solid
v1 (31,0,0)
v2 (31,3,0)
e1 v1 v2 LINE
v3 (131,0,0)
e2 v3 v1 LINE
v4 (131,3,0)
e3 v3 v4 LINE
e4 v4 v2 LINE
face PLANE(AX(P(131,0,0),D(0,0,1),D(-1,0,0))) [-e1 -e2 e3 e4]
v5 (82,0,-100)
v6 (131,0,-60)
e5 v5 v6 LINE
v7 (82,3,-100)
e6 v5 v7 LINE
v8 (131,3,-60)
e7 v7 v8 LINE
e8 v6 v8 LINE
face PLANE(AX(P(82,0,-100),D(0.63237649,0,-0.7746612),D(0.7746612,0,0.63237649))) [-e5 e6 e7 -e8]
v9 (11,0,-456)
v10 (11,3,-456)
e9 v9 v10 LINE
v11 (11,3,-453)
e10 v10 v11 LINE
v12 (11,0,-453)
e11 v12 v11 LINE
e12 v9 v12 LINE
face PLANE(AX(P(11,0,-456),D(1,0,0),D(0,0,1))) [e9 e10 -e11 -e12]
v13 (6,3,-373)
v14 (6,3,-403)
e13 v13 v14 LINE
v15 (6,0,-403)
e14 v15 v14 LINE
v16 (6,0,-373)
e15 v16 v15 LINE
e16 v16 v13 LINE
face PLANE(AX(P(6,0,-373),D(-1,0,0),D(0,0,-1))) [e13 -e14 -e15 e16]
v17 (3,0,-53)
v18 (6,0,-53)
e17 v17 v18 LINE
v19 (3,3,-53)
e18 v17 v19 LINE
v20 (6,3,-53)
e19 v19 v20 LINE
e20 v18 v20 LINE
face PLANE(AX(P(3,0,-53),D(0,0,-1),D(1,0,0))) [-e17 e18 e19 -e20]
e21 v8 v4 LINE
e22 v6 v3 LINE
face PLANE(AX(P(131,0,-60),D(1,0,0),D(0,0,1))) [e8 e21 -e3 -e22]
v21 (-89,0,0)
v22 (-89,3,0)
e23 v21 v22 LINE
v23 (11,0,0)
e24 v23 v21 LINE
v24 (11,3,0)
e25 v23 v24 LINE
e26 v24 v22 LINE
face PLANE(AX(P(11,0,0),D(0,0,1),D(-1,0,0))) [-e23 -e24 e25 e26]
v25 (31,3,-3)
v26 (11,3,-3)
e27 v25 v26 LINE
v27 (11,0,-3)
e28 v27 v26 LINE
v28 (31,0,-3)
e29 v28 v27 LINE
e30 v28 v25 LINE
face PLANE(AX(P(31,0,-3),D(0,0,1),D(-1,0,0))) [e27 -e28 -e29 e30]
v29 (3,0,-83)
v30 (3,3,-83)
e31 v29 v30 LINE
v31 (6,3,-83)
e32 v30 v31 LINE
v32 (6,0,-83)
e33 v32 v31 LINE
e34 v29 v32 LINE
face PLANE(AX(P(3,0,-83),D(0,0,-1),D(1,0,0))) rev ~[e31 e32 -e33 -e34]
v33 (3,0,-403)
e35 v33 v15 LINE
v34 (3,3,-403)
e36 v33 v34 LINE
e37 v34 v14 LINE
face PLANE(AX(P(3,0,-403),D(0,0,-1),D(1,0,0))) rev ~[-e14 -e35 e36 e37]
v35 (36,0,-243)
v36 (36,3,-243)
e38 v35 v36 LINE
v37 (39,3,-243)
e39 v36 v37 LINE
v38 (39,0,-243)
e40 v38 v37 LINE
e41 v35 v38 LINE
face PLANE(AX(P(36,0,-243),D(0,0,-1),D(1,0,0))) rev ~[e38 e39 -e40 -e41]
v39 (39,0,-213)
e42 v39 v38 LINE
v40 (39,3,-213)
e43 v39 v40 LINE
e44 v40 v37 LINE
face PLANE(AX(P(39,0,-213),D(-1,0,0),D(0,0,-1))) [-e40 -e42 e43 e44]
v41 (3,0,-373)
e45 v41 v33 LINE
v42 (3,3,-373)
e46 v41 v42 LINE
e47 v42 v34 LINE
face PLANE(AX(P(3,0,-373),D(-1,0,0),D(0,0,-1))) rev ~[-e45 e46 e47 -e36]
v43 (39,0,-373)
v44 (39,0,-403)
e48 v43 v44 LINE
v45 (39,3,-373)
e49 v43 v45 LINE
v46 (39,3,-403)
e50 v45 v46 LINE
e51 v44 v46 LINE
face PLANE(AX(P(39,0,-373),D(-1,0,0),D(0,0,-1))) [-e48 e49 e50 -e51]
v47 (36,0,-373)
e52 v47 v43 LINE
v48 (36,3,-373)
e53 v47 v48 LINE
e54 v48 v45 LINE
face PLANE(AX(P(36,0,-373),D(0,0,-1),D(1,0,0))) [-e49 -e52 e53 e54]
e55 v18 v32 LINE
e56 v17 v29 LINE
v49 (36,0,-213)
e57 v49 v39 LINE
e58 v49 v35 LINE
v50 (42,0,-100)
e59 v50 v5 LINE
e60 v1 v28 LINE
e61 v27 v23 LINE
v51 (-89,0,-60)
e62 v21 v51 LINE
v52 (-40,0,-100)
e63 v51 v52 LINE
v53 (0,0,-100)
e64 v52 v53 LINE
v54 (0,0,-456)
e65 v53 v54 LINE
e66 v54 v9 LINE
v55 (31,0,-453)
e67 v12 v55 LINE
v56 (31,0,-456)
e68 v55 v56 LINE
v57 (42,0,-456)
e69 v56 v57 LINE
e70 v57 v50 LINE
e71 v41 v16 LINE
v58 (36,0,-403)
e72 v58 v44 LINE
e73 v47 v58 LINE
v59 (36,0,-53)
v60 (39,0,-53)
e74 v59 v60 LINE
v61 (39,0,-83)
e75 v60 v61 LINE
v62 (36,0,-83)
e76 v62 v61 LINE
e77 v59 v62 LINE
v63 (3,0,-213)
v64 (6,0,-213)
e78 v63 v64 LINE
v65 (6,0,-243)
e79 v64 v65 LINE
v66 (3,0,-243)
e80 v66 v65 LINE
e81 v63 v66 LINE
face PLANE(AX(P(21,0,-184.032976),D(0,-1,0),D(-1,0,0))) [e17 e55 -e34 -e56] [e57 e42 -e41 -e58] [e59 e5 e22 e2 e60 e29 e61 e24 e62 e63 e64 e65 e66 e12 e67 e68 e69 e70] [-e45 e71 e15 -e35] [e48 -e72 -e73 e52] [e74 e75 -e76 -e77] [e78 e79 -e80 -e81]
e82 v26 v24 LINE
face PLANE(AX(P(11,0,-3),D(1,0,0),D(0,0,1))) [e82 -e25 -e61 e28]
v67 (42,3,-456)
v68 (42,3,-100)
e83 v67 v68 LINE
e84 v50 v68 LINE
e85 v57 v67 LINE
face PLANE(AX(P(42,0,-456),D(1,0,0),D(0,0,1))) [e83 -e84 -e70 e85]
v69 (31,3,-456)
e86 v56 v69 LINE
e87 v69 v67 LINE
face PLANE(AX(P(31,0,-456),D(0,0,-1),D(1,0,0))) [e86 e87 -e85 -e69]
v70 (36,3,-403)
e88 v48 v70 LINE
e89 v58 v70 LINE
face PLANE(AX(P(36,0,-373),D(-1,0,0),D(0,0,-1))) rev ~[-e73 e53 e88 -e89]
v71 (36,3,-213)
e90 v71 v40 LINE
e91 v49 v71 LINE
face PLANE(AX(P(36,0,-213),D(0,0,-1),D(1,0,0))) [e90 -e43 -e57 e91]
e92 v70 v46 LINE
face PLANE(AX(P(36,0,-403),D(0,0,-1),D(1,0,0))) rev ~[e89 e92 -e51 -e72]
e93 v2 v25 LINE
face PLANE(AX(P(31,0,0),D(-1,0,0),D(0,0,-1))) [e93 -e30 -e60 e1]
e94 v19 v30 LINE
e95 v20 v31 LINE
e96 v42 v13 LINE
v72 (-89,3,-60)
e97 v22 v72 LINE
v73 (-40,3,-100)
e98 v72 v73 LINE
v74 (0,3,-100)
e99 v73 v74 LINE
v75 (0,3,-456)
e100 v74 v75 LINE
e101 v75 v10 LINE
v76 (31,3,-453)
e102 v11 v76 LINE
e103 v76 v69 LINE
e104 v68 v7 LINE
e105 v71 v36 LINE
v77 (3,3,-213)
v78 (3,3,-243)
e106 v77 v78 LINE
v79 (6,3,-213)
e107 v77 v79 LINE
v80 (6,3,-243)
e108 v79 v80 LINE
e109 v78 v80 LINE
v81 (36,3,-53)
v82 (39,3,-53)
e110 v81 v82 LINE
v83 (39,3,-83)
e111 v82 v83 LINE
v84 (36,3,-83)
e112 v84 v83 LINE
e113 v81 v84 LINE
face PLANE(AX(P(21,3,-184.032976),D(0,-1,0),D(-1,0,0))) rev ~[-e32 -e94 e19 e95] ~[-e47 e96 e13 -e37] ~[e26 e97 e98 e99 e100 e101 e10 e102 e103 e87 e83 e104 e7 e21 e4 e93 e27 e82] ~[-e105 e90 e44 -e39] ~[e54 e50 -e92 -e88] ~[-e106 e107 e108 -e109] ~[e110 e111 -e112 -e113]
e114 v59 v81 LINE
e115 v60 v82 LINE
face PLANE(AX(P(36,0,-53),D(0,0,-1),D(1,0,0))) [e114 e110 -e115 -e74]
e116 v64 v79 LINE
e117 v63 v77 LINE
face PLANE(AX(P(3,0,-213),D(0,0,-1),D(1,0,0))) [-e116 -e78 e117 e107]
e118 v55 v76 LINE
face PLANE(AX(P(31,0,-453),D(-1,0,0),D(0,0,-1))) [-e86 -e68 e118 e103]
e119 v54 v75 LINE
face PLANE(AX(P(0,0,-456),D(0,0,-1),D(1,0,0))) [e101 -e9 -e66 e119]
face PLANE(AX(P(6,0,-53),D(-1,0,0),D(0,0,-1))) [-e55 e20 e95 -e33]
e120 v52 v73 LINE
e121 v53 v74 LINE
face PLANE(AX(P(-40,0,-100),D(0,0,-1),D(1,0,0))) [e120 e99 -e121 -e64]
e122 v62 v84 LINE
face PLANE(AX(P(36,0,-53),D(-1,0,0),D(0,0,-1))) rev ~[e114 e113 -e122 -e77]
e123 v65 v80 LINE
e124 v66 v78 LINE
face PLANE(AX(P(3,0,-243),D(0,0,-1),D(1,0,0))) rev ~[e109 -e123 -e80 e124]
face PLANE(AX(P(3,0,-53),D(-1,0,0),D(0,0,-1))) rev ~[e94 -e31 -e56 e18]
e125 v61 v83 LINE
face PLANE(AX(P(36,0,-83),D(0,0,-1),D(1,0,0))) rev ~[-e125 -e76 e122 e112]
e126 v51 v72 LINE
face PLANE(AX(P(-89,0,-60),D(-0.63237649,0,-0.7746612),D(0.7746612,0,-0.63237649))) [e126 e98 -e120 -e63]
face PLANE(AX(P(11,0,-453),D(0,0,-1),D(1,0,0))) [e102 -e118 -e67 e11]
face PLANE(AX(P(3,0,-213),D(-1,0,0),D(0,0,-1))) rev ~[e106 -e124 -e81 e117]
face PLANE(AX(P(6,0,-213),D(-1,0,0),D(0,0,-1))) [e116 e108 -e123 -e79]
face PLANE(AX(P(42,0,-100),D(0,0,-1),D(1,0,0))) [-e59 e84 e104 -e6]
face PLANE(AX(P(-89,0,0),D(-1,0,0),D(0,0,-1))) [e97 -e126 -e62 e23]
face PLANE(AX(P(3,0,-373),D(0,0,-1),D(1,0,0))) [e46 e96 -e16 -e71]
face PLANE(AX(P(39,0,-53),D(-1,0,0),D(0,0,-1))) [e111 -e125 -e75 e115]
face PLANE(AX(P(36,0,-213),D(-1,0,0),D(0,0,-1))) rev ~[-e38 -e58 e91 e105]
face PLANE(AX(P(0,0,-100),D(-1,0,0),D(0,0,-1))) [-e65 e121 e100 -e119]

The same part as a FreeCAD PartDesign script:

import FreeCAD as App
import Part
import Sketcher


def add_polygon(sketch, points):
    """Adds a closed chain of lines whose ends are joined by coincident constraints."""
    first, n = sketch.GeometryCount, len(points)
    for a, b in zip(points, points[1:] + points[:1]):
        sketch.addGeometry(Part.LineSegment(App.Vector(*a, 0), App.Vector(*b, 0)), False)
    for i in range(n):
        sketch.addConstraint(Sketcher.Constraint("Coincident", first + i, 2, first + (i + 1) % n, 1))

doc = App.newDocument("Part")
body = doc.addObject("PartDesign::Body", "Body")

# Sketch on XZ plane
sketch1 = body.newObject("Sketcher::SketchObject", "Sketch")
sketch1.AttachmentSupport = (doc.getObject("XZ_Plane"), [""])
sketch1.MapMode = "FlatFace"
add_polygon(sketch1, [(42, -456), (31, -456), (31, -453), (11, -453), (11, -456), (0, -456), (0, -100), (-40, -100), (-89, -60), (-89, 0), (11, 0), (11, -3), (31, -3), (31, 0), (131, 0), (131, -60), (82, -100), (42, -100)])  # lines 0-17
add_polygon(sketch1, [(36, -53), (36, -83), (39, -83), (39, -53)])  # lines 18-21
add_polygon(sketch1, [(3, -53), (3, -83), (6, -83), (6, -53)])  # lines 22-25
add_polygon(sketch1, [(36, -213), (36, -243), (39, -243), (39, -213)])  # lines 26-29
add_polygon(sketch1, [(36, -373), (36, -403), (39, -403), (39, -373)])  # lines 30-33
add_polygon(sketch1, [(3, -213), (3, -243), (6, -243), (6, -213)])  # lines 34-37
add_polygon(sketch1, [(3, -373), (3, -403), (6, -403), (6, -373)])  # lines 38-41
sketch1.addConstraint([
    Sketcher.Constraint("Horizontal", 0),
    Sketcher.Constraint("Vertical", 1),
    Sketcher.Constraint("Horizontal", 2),
    Sketcher.Constraint("Vertical", 3),
    Sketcher.Constraint("Horizontal", 4),
    Sketcher.Constraint("Vertical", 5),
    Sketcher.Constraint("Horizontal", 6),
    Sketcher.Constraint("Vertical", 8),
    Sketcher.Constraint("Horizontal", 9),
    Sketcher.Constraint("Vertical", 10),
    Sketcher.Constraint("Horizontal", 11),
    Sketcher.Constraint("Vertical", 12),
    Sketcher.Constraint("Horizontal", 13),
    Sketcher.Constraint("Vertical", 14),
    Sketcher.Constraint("Horizontal", 16),
    Sketcher.Constraint("Vertical", 17),
    Sketcher.Constraint("Vertical", 18),
    Sketcher.Constraint("Horizontal", 19),
    Sketcher.Constraint("Vertical", 20),
    Sketcher.Constraint("Horizontal", 21),
    Sketcher.Constraint("Vertical", 22),
    Sketcher.Constraint("Horizontal", 23),
    Sketcher.Constraint("Vertical", 24),
    Sketcher.Constraint("Horizontal", 25),
    Sketcher.Constraint("Vertical", 26),
    Sketcher.Constraint("Horizontal", 27),
    Sketcher.Constraint("Vertical", 28),
    Sketcher.Constraint("Horizontal", 29),
    Sketcher.Constraint("Vertical", 30),
    Sketcher.Constraint("Horizontal", 31),
    Sketcher.Constraint("Vertical", 32),
    Sketcher.Constraint("Horizontal", 33),
    Sketcher.Constraint("Vertical", 34),
    Sketcher.Constraint("Horizontal", 35),
    Sketcher.Constraint("Vertical", 36),
    Sketcher.Constraint("Horizontal", 37),
    Sketcher.Constraint("Vertical", 38),
    Sketcher.Constraint("Horizontal", 39),
    Sketcher.Constraint("Vertical", 40),
    Sketcher.Constraint("Horizontal", 41),
    Sketcher.Constraint("PointOnObject", 4, 2, -2),
    Sketcher.Constraint("PointOnObject", 8, 2, -1),
    Sketcher.Constraint("PointOnObject", 12, 2, -1),
    Sketcher.Constraint("Horizontal", 0, 2, 3, 2),
    Sketcher.Constraint("Horizontal", 7, 2, 14, 2),
    Sketcher.Constraint("Horizontal", 6, 2, 15, 2),
    Sketcher.Constraint("Horizontal", 19, 2, 22, 2),
    Sketcher.Constraint("Horizontal", 21, 2, 24, 2),
    Sketcher.Constraint("Horizontal", 27, 2, 34, 2),
    Sketcher.Constraint("Horizontal", 29, 2, 36, 2),
    Sketcher.Constraint("Horizontal", 31, 2, 38, 2),
    Sketcher.Constraint("Horizontal", 33, 2, 40, 2),
    Sketcher.Constraint("Vertical", 3, 2, 9, 2),
    Sketcher.Constraint("Vertical", 1, 2, 11, 2),
    Sketcher.Constraint("Vertical", 21, 2, 26, 2),
    Sketcher.Constraint("Vertical", 20, 2, 27, 2),
    Sketcher.Constraint("Vertical", 29, 2, 30, 2),
    Sketcher.Constraint("Vertical", 28, 2, 31, 2),
    Sketcher.Constraint("Vertical", 25, 2, 34, 2),
    Sketcher.Constraint("Vertical", 24, 2, 35, 2),
    Sketcher.Constraint("Vertical", 37, 2, 38, 2),
    Sketcher.Constraint("Vertical", 36, 2, 39, 2),
    Sketcher.Constraint("Equal", 0, 4),
    Sketcher.Constraint("Equal", 9, 13),
    Sketcher.Constraint("Equal", 6, 16),
    Sketcher.Constraint("Equal", 21, 23),
    Sketcher.Constraint("Equal", 41, 1),
    Sketcher.Constraint("Equal", 3, 10),
    Sketcher.Constraint("Equal", 24, 26),
    Sketcher.Constraint("Equal", 28, 30),
    Sketcher.Constraint("DistanceX", 0, 2, 0, 1, 11.0),
    Sketcher.Constraint("DistanceX", 2, 2, 2, 1, 20.0),
    Sketcher.Constraint("DistanceX", 6, 2, 6, 1, 40.0),
    Sketcher.Constraint("DistanceX", 9, 1, 9, 2, 100.0),
    Sketcher.Constraint("DistanceX", 19, 1, 19, 2, 3.0),
    Sketcher.Constraint("DistanceY", 5, 1, 5, 2, 356.0),
    Sketcher.Constraint("DistanceY", 8, 1, 8, 2, 60.0),
    Sketcher.Constraint("DistanceY", 18, 2, 18, 1, 30.0),
    Sketcher.Constraint("DistanceY", 0, 2, -1, 1, 456.0),
    Sketcher.Constraint("DistanceX", -1, 1, 18, 2, 36.0),
    Sketcher.Constraint("DistanceY", 18, 2, -1, 1, 83.0),
    Sketcher.Constraint("DistanceX", -1, 1, 22, 2, 3.0),
    Sketcher.Constraint("DistanceY", 26, 2, -1, 1, 243.0),
    Sketcher.Constraint("DistanceY", 30, 2, -1, 1, 403.0),
])
pad1 = body.newObject("PartDesign::Pad", "Pad")
pad1.Profile = sketch1
pad1.Length = 3
pad1.Reversed = True

doc.recompute()
